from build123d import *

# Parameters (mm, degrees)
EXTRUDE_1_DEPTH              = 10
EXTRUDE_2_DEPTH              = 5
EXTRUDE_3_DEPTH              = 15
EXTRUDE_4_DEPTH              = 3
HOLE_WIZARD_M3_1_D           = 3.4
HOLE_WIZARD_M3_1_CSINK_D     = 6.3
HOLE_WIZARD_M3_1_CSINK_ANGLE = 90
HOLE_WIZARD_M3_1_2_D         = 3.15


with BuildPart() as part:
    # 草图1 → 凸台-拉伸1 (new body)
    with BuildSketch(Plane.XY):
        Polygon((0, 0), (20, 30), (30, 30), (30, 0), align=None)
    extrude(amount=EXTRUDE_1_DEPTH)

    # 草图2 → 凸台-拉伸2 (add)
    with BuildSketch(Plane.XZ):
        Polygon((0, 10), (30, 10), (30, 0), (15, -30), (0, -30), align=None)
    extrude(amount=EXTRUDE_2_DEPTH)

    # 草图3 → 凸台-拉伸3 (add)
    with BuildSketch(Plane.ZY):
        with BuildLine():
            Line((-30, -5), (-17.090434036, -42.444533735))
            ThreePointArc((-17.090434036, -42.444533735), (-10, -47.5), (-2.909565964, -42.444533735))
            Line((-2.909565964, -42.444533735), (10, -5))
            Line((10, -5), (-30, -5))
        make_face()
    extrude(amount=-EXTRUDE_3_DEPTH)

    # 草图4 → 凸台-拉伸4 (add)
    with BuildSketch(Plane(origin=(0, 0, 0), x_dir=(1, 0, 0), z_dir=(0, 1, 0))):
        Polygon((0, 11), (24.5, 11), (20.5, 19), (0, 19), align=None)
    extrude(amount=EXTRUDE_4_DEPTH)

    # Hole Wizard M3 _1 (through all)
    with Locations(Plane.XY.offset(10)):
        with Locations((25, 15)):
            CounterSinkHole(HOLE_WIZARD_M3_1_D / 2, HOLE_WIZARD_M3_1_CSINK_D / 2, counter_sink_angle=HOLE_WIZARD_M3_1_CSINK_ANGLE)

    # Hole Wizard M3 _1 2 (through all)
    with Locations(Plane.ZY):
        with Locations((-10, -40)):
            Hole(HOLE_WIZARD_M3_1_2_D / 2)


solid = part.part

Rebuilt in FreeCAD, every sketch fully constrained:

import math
import FreeCAD as App
import Part
import Sketcher

V = App.Vector
Q = App.Units.Quantity


def add_polygon(sketch, points):
    """Adds a closed chain of lines whose ends are joined by coincident constraints."""
    first, n = sketch.GeometryCount, len(points)
    for a, b in zip(points, points[1:] + points[:1]):
        sketch.addGeometry(Part.LineSegment(App.Vector(*a, 0), App.Vector(*b, 0)), False)
    for i in range(n):
        sketch.addConstraint(Sketcher.Constraint("Coincident", first + i, 2, first + (i + 1) % n, 1))

doc = App.newDocument("Part")
params = doc.addObject("Spreadsheet::Sheet", "Params")
for row, (alias, value) in enumerate([
    ("sketch1_width", "30 mm"),
    ("sketch1_width2", "10 mm"),
    ("pad1_length", "10 mm"),
    ("sketch2_width", "30 mm"),
    ("sketch2_width2", "15 mm"),
    ("sketch2_height", "40 mm"),
    ("sketch2_height2", "10 mm"),
    ("pad2_length", "5 mm"),
    ("sketch3_radius", "7.5 mm"),
    ("sketch3_height", "40 mm"),
    ("pad3_length", "15 mm"),
    ("sketch4_height", "8 mm"),
    ("sketch4_width", "24.5 mm"),
    ("sketch4_width2", "20.5 mm"),
    ("pad4_length", "3 mm"),
    ("sketch5_diameter", "3.4 mm"),
    ("hole_diameter", "3.4 mm"),
    ("hole_csink_diameter", "6.3 mm"),
    ("sketch6_diameter", "3.15 mm"),
    ("hole2_diameter", "3.15 mm"),
], start=1):
    params.set(f"A{row}", alias)
    params.set(f"B{row}", "=" + value)
    params.setAlias(f"B{row}", alias)

body = doc.addObject("PartDesign::Body", "Body")

# Sketch on XY plane
sketch1 = body.newObject("Sketcher::SketchObject", "Sketch")
sketch1.AttachmentSupport = (doc.getObject("XY_Plane"), [""])
sketch1.MapMode = "FlatFace"
add_polygon(sketch1, [(20, 30), (0, 0), (30, 0), (30, 30)])  # lines 0-3
sketch1.addConstraint(Sketcher.Constraint("Horizontal", 1))
sketch1.addConstraint(Sketcher.Constraint("Vertical", 2))
sketch1.addConstraint(Sketcher.Constraint("Horizontal", 3))
sketch1.addConstraint(Sketcher.Constraint("Coincident", 0, 2, -1, 1))
sketch1.addConstraint(Sketcher.Constraint("Equal", 1, 2))
sketch1.addConstraint(Sketcher.Constraint("DistanceX", 1, 1, 1, 2, Q("30 mm")))
sketch1.addConstraint(Sketcher.Constraint("DistanceX", 3, 2, 3, 1, Q("10 mm")))
sketch1.setExpression("Constraints[9]", "Params.sketch1_width")
sketch1.setExpression("Constraints[10]", "Params.sketch1_width2")
pad1 = body.newObject("PartDesign::Pad", "Pad")
pad1.Profile = sketch1
pad1.setExpression("Length", "Params.pad1_length")

# Sketch on XZ plane
sketch2 = body.newObject("Sketcher::SketchObject", "Sketch001")
sketch2.AttachmentSupport = (doc.getObject("XZ_Plane"), [""])
sketch2.MapMode = "FlatFace"
add_polygon(sketch2, [(30, 10), (0, 10), (0, -30), (15, -30), (30, 0)])  # lines 0-4
sketch2.addConstraint(Sketcher.Constraint("Horizontal", 0))
sketch2.addConstraint(Sketcher.Constraint("Vertical", 1))
sketch2.addConstraint(Sketcher.Constraint("Horizontal", 2))
sketch2.addConstraint(Sketcher.Constraint("Vertical", 4))
sketch2.addConstraint(Sketcher.Constraint("PointOnObject", 0, 2, -2))
sketch2.addConstraint(Sketcher.Constraint("PointOnObject", 3, 2, -1))
sketch2.addConstraint(Sketcher.Constraint("DistanceX", 0, 2, 0, 1, Q("30 mm")))
sketch2.addConstraint(Sketcher.Constraint("DistanceX", 2, 1, 2, 2, Q("15 mm")))
sketch2.addConstraint(Sketcher.Constraint("DistanceY", 1, 2, 1, 1, Q("40 mm")))
sketch2.addConstraint(Sketcher.Constraint("DistanceY", 4, 1, 4, 2, Q("10 mm")))
sketch2.setExpression("Constraints[11]", "Params.sketch2_width")
sketch2.setExpression("Constraints[12]", "Params.sketch2_width2")
sketch2.setExpression("Constraints[13]", "Params.sketch2_height")
sketch2.setExpression("Constraints[14]", "Params.sketch2_height2")
pad2 = body.newObject("PartDesign::Pad", "Pad001")
pad2.Profile = sketch2
pad2.setExpression("Length", "Params.pad2_length")

# Sketch on YZ plane
sketch3 = body.newObject("Sketcher::SketchObject", "Sketch002")
sketch3.AttachmentSupport = (doc.getObject("YZ_Plane"), [""])
sketch3.MapMode = "FlatFace"
sketch3.addGeometry(Part.LineSegment(V(-5, -30, 0), V(-42, -17, 0)), False)
sketch3.addGeometry(Part.ArcOfCircle(Part.Circle(V(-40, -10, 0), V(0, 0, 1), 8), math.radians(109), math.radians(251)), False)
sketch3.addGeometry(Part.LineSegment(V(-42, -3, 0), V(-5, 10, 0)), False)
sketch3.addGeometry(Part.LineSegment(V(-5, 10, 0), V(-5, -30, 0)), False)
sketch3.addConstraint(Sketcher.Constraint("Tangent", 0, 2, 1, 2))
sketch3.addConstraint(Sketcher.Constraint("Tangent", 1, 1, 2, 1))
sketch3.addConstraint(Sketcher.Constraint("Coincident", 2, 2, 3, 1))
sketch3.addConstraint(Sketcher.Constraint("Coincident", 3, 2, 0, 1))
sketch3.addConstraint(Sketcher.Constraint("Vertical", 3))
sketch3.addConstraint(Sketcher.Constraint("Vertical", 0, 2, 1, 1))
sketch3.addConstraint(Sketcher.Constraint("Radius", 1, Q("7.5 mm")))
sketch3.addConstraint(Sketcher.Constraint("DistanceY", 3, 2, 3, 1, Q("40 mm")))
sketch3.addConstraint(Sketcher.Constraint("DistanceX", 1, 3, -1, 1, Q("40 mm")))
sketch3.addConstraint(Sketcher.Constraint("DistanceY", 1, 3, -1, 1, Q("10 mm")))
sketch3.addConstraint(Sketcher.Constraint("DistanceX", 2, 2, -1, 1, Q("5 mm")))
sketch3.setExpression("Constraints[6]", "Params.sketch3_radius")
sketch3.setExpression("Constraints[7]", "Params.sketch3_height")
pad3 = body.newObject("PartDesign::Pad", "Pad002")
pad3.Profile = sketch3
pad3.setExpression("Length", "Params.pad3_length")

# Sketch on XZ plane
sketch4 = body.newObject("Sketcher::SketchObject", "Sketch003")
sketch4.AttachmentSupport = (doc.getObject("XZ_Plane"), [""])
sketch4.MapMode = "FlatFace"
add_polygon(sketch4, [(0, -11), (24, -11), (20, -19), (0, -19)])  # lines 0-3
sketch4.addConstraint(Sketcher.Constraint("Horizontal", 0))
sketch4.addConstraint(Sketcher.Constraint("Horizontal", 2))
sketch4.addConstraint(Sketcher.Constraint("Vertical", 3))
sketch4.addConstraint(Sketcher.Constraint("PointOnObject", 2, 2, -2))
sketch4.addConstraint(Sketcher.Constraint("DistanceY", 3, 1, 3, 2, Q("8 mm")))
sketch4.addConstraint(Sketcher.Constraint("DistanceX", 0, 1, 0, 2, Q("24.5 mm")))
sketch4.addConstraint(Sketcher.Constraint("DistanceX", 2, 2, 2, 1, Q("20.5 mm")))
sketch4.addConstraint(Sketcher.Constraint("DistanceY", 0, 2, -1, 1, Q("11 mm")))
sketch4.setExpression("Constraints[8]", "Params.sketch4_height")
sketch4.setExpression("Constraints[9]", "Params.sketch4_width")
sketch4.setExpression("Constraints[10]", "Params.sketch4_width2")
pad4 = body.newObject("PartDesign::Pad", "Pad003")
pad4.Profile = sketch4
pad4.setExpression("Length", "Params.pad4_length")
pad4.Reversed = True

# Sketch on XY plane
sketch5 = body.newObject("Sketcher::SketchObject", "Sketch004")
sketch5.AttachmentSupport = (doc.getObject("XY_Plane"), [""])
sketch5.MapMode = "FlatFace"
sketch5.AttachmentOffset = App.Placement(V(0, 0, 10), App.Rotation())
sketch5.addGeometry(Part.Circle(V(25, 15, 0), V(0, 0, 1), 1.7), False)
sketch5.addConstraint(Sketcher.Constraint("Diameter", 0, Q("3.4 mm")))
sketch5.addConstraint(Sketcher.Constraint("DistanceX", -1, 1, 0, 3, Q("25 mm")))
sketch5.addConstraint(Sketcher.Constraint("DistanceY", -1, 1, 0, 3, Q("15 mm")))
sketch5.setExpression("Constraints[0]", "Params.sketch5_diameter")
doc.recompute()
hole = body.newObject("PartDesign::Hole", "Hole")
hole.Profile = sketch5
hole.ThreadType = "None"
hole.setExpression("Diameter", "Params.hole_diameter")
hole.DepthType = "ThroughAll"
hole.HoleCutType = "Countersink"
hole.setExpression("HoleCutDiameter", "Params.hole_csink_diameter")
hole.HoleCutCountersinkAngle = 90

# Sketch on YZ plane
sketch6 = body.newObject("Sketcher::SketchObject", "Sketch005")
sketch6.AttachmentSupport = (doc.getObject("YZ_Plane"), [""])
sketch6.MapMode = "FlatFace"
sketch6.addGeometry(Part.Circle(V(-40, -10, 0), V(0, 0, 1), 1.6), False)
sketch6.addConstraint(Sketcher.Constraint("Diameter", 0, Q("3.15 mm")))
sketch6.addConstraint(Sketcher.Constraint("DistanceX", 0, 3, -1, 1, Q("40 mm")))
sketch6.addConstraint(Sketcher.Constraint("DistanceY", 0, 3, -1, 1, Q("10 mm")))
sketch6.setExpression("Constraints[0]", "Params.sketch6_diameter")
doc.recompute()
hole2 = body.newObject("PartDesign::Hole", "Hole001")
hole2.Profile = sketch6
hole2.ThreadType = "None"
hole2.setExpression("Diameter", "Params.hole2_diameter")
hole2.DepthType = "ThroughAll"
hole2.Reversed = True

doc.recompute()
